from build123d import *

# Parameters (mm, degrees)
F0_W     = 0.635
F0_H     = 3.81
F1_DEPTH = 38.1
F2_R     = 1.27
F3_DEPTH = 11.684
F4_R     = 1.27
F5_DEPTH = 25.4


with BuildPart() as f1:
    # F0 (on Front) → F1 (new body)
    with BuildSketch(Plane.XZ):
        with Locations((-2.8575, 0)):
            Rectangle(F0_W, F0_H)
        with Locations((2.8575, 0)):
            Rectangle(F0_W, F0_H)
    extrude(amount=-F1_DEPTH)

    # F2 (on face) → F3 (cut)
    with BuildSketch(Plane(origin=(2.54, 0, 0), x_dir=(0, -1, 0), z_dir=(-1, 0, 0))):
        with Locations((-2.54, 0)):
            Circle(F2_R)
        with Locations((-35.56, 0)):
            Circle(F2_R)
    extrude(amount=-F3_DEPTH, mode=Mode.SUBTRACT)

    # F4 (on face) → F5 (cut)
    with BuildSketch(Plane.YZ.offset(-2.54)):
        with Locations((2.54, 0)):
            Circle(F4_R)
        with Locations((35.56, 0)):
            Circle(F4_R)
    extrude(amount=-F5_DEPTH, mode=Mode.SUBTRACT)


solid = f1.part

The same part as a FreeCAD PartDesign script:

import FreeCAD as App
import Part
import Sketcher
from FreeCAD import Vector
Q = App.Units.Quantity

doc = App.newDocument("Part")
body = doc.addObject("PartDesign::Body", "Body")
body.AllowCompound = True

# Sketch on XZ plane
sketch1 = doc.addObject("Sketcher::SketchObject", "Sketch")
body.addObject(sketch1)
sketch1.AttachmentSupport = (doc.XZ_Plane, [""])
sketch1.MapMode = "FlatFace"
sketch1.addGeometry([
    Part.LineSegment(Vector(-3.2, 1.9, 0), Vector(-3.2, -1.9, 0)),  # 0
    Part.LineSegment(Vector(-3.2, -1.9, 0), Vector(-2.5, -1.9, 0)),  # 1
    Part.LineSegment(Vector(-2.5, -1.9, 0), Vector(-2.5, 1.9, 0)),  # 2
    Part.LineSegment(Vector(-2.5, 1.9, 0), Vector(-3.2, 1.9, 0)),  # 3
    Part.LineSegment(Vector(2.5, 1.9, 0), Vector(2.5, -1.9, 0)),  # 4
    Part.LineSegment(Vector(2.5, -1.9, 0), Vector(3.2, -1.9, 0)),  # 5
    Part.LineSegment(Vector(3.2, -1.9, 0), Vector(3.2, 1.9, 0)),  # 6
    Part.LineSegment(Vector(3.2, 1.9, 0), Vector(2.5, 1.9, 0)),  # 7
], False)
sketch1.addConstraint([
    Sketcher.Constraint("Coincident", 0, 2, 1, 1),
    Sketcher.Constraint("Coincident", 1, 2, 2, 1),
    Sketcher.Constraint("Coincident", 2, 2, 3, 1),
    Sketcher.Constraint("Coincident", 3, 2, 0, 1),
    Sketcher.Constraint("Coincident", 4, 2, 5, 1),
    Sketcher.Constraint("Coincident", 5, 2, 6, 1),
    Sketcher.Constraint("Coincident", 6, 2, 7, 1),
    Sketcher.Constraint("Coincident", 7, 2, 4, 1),
    Sketcher.Constraint("Vertical", 0),
    Sketcher.Constraint("Horizontal", 1),
    Sketcher.Constraint("Vertical", 2),
    Sketcher.Constraint("Horizontal", 3),
    Sketcher.Constraint("Vertical", 4),
    Sketcher.Constraint("Horizontal", 5),
    Sketcher.Constraint("Vertical", 6),
    Sketcher.Constraint("Horizontal", 7),
    Sketcher.Constraint("Symmetric", 2, 2, 4, 2, -1, 1),
    Sketcher.Constraint("Symmetric", 0, 2, 6, 2, -1, 1),
    Sketcher.Constraint("Horizontal", 1, 2, 4, 2),
    Sketcher.Constraint("DistanceY", 0, 2, 0, 1, Q("0.15 in")),
    Sketcher.Constraint("DistanceX", 1, 2, -1, 1, Q("0.1 in")),
    Sketcher.Constraint("DistanceX", 1, 1, 1, 2, Q("0.025 in")),
])
pad1 = doc.addObject("PartDesign::Pad", "Pad")
body.addObject(pad1)
pad1.Profile = sketch1
pad1.Length = Q("1.5 in")
pad1.Reversed = True

# Sketch on YZ plane
sketch2 = doc.addObject("Sketcher::SketchObject", "Sketch001")
body.addObject(sketch2)
sketch2.AttachmentSupport = (doc.YZ_Plane, [""])
sketch2.MapMode = "FlatFace"
sketch2.AttachmentOffset = App.Placement(Vector(0, 0, 0.1 * 25.4), App.Rotation())
sketch2.addGeometry([
    Part.Circle(Vector(2.5, 0, 0), Vector(0, 0, 1), 1.3),
    Part.Circle(Vector(35.6, 0, 0), Vector(0, 0, 1), 1.3),
], False)
sketch2.addConstraint([
    Sketcher.Constraint("Equal", 0, 1),
    Sketcher.Constraint("PointOnObject", 0, 3, -1),
    Sketcher.Constraint("PointOnObject", 1, 3, -1),
    Sketcher.Constraint("Diameter", 0, Q("0.1 in")),
    Sketcher.Constraint("DistanceX", -1, 1, 0, 3, Q("0.1 in")),
    Sketcher.Constraint("DistanceX", -1, 1, 1, 3, Q("1.4 in")),
])
pocket1 = doc.addObject("PartDesign::Pocket", "Pocket")
body.addObject(pocket1)
pocket1.Profile = sketch2
pocket1.Length = Q("0.46 in")
pocket1.Reversed = True

# Sketch on YZ plane
sketch3 = doc.addObject("Sketcher::SketchObject", "Sketch002")
body.addObject(sketch3)
sketch3.AttachmentSupport = (doc.YZ_Plane, [""])
sketch3.MapMode = "FlatFace"
sketch3.AttachmentOffset = App.Placement(Vector(0, 0, -0.1 * 25.4), App.Rotation())
sketch3.addGeometry([
    Part.Circle(Vector(2.5, 0, 0), Vector(0, 0, 1), 1.3),
    Part.Circle(Vector(35.6, 0, 0), Vector(0, 0, 1), 1.3),
], False)
sketch3.addConstraint([
    Sketcher.Constraint("Equal", 0, 1),
    Sketcher.Constraint("PointOnObject", 0, 3, -1),
    Sketcher.Constraint("PointOnObject", 1, 3, -1),
    Sketcher.Constraint("Diameter", 0, Q("0.1 in")),
    Sketcher.Constraint("DistanceX", -1, 1, 0, 3, Q("0.1 in")),
    Sketcher.Constraint("DistanceX", -1, 1, 1, 3, Q("1.4 in")),
])
pocket2 = doc.addObject("PartDesign::Pocket", "Pocket001")
body.addObject(pocket2)
pocket2.Profile = sketch3
pocket2.Length = Q("1 in")

doc.recompute()
